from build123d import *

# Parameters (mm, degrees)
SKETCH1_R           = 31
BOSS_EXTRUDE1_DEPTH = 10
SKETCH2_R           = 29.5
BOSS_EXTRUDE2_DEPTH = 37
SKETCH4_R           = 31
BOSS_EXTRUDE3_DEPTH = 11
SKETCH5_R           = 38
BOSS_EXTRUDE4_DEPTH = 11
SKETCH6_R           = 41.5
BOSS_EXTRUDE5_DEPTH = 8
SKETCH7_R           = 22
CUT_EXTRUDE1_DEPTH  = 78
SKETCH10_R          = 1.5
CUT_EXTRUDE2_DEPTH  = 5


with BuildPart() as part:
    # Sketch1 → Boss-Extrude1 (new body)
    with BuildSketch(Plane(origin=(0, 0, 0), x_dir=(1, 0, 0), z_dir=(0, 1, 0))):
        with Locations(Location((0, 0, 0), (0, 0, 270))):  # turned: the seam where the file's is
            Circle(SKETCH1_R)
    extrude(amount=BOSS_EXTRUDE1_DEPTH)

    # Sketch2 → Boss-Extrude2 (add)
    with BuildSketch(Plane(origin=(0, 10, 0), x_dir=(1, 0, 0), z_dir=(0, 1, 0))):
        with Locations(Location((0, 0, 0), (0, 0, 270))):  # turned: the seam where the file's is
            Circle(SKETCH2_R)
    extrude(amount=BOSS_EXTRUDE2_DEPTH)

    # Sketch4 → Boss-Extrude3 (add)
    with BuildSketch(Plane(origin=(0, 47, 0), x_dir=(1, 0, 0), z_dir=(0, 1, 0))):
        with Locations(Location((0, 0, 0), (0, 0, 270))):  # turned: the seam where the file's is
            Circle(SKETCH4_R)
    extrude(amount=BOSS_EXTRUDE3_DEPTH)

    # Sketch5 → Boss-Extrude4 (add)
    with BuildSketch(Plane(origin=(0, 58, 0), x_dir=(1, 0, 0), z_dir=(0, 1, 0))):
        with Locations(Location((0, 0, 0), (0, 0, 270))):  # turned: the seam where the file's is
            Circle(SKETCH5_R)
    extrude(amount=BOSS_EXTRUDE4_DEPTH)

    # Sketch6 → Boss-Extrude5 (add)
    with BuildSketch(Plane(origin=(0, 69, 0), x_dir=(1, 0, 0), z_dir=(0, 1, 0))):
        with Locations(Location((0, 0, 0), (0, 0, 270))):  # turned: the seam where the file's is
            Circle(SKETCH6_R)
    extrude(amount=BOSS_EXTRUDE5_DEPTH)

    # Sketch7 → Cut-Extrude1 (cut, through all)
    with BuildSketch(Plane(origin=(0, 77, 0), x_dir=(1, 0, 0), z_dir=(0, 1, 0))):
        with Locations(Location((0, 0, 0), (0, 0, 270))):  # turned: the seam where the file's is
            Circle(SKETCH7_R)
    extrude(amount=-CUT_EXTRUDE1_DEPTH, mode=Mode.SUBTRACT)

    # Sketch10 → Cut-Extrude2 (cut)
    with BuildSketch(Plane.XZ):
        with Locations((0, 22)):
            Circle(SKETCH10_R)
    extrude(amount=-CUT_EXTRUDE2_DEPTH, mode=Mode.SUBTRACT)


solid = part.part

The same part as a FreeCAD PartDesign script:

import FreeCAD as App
import Part
import Sketcher

doc = App.newDocument("Part")
body = doc.addObject("PartDesign::Body", "Body")

# Sketch on XZ plane
sketch1 = body.newObject("Sketcher::SketchObject", "Sketch")
sketch1.AttachmentSupport = (doc.getObject("XZ_Plane"), [""])
sketch1.MapMode = "FlatFace"
sketch1.addGeometry(Part.Circle(App.Vector(0, 0, 0), App.Vector(0, 0, 1), 31), False)
sketch1.addConstraint([
    Sketcher.Constraint("Coincident", 0, 3, -1, 1),
    Sketcher.Constraint("Diameter", 0, 62.0),
])
pad1 = body.newObject("PartDesign::Pad", "Pad")
pad1.Profile = sketch1
pad1.Length = 10
pad1.Reversed = True

# Sketch on XZ plane
sketch2 = body.newObject("Sketcher::SketchObject", "Sketch001")
sketch2.AttachmentSupport = (doc.getObject("XZ_Plane"), [""])
sketch2.MapMode = "FlatFace"
sketch2.AttachmentOffset = App.Placement(App.Vector(0, 0, -10), App.Rotation())
sketch2.addGeometry(Part.Circle(App.Vector(0, 0, 0), App.Vector(0, 0, 1), 29.5), False)
sketch2.addConstraint([
    Sketcher.Constraint("Coincident", 0, 3, -1, 1),
    Sketcher.Constraint("Diameter", 0, 59.0),
])
pad2 = body.newObject("PartDesign::Pad", "Pad001")
pad2.Profile = sketch2
pad2.Length = 37
pad2.Reversed = True

# Sketch on XZ plane
sketch3 = body.newObject("Sketcher::SketchObject", "Sketch002")
sketch3.AttachmentSupport = (doc.getObject("XZ_Plane"), [""])
sketch3.MapMode = "FlatFace"
sketch3.AttachmentOffset = App.Placement(App.Vector(0, 0, -47), App.Rotation())
sketch3.addGeometry(Part.Circle(App.Vector(0, 0, 0), App.Vector(0, 0, 1), 31), False)
sketch3.addConstraint([
    Sketcher.Constraint("Coincident", 0, 3, -1, 1),
    Sketcher.Constraint("Diameter", 0, 62.0),
])
pad3 = body.newObject("PartDesign::Pad", "Pad002")
pad3.Profile = sketch3
pad3.Length = 11
pad3.Reversed = True

# Sketch on XZ plane
sketch4 = body.newObject("Sketcher::SketchObject", "Sketch003")
sketch4.AttachmentSupport = (doc.getObject("XZ_Plane"), [""])
sketch4.MapMode = "FlatFace"
sketch4.AttachmentOffset = App.Placement(App.Vector(0, 0, -58), App.Rotation())
sketch4.addGeometry(Part.Circle(App.Vector(0, 0, 0), App.Vector(0, 0, 1), 38), False)
sketch4.addConstraint([
    Sketcher.Constraint("Coincident", 0, 3, -1, 1),
    Sketcher.Constraint("Diameter", 0, 76.0),
])
pad4 = body.newObject("PartDesign::Pad", "Pad003")
pad4.Profile = sketch4
pad4.Length = 11
pad4.Reversed = True

# Sketch on XZ plane
sketch5 = body.newObject("Sketcher::SketchObject", "Sketch004")
sketch5.AttachmentSupport = (doc.getObject("XZ_Plane"), [""])
sketch5.MapMode = "FlatFace"
sketch5.AttachmentOffset = App.Placement(App.Vector(0, 0, -69), App.Rotation())
sketch5.addGeometry(Part.Circle(App.Vector(0, 0, 0), App.Vector(0, 0, 1), 41.5), False)
sketch5.addConstraint([
    Sketcher.Constraint("Coincident", 0, 3, -1, 1),
    Sketcher.Constraint("Diameter", 0, 83.0),
])
pad5 = body.newObject("PartDesign::Pad", "Pad004")
pad5.Profile = sketch5
pad5.Length = 8
pad5.Reversed = True

# Sketch on XZ plane
sketch6 = body.newObject("Sketcher::SketchObject", "Sketch005")
sketch6.AttachmentSupport = (doc.getObject("XZ_Plane"), [""])
sketch6.MapMode = "FlatFace"
sketch6.AttachmentOffset = App.Placement(App.Vector(0, 0, -77), App.Rotation())
sketch6.addGeometry(Part.Circle(App.Vector(0, 0, 0), App.Vector(0, 0, 1), 22), False)
sketch6.addConstraint([
    Sketcher.Constraint("Coincident", 0, 3, -1, 1),
    Sketcher.Constraint("Diameter", 0, 44.0),
])
pocket1 = body.newObject("PartDesign::Pocket", "Pocket")
pocket1.Profile = sketch6
pocket1.Type = "ThroughAll"
pocket1.Reversed = True

# Sketch on XZ plane
sketch7 = body.newObject("Sketcher::SketchObject", "Sketch006")
sketch7.AttachmentSupport = (doc.getObject("XZ_Plane"), [""])
sketch7.MapMode = "FlatFace"
sketch7.addGeometry(Part.Circle(App.Vector(0, 22, 0), App.Vector(0, 0, 1), 1.5), False)
sketch7.addConstraint([
    Sketcher.Constraint("PointOnObject", 0, 3, -2),
    Sketcher.Constraint("Diameter", 0, 3.0),
    Sketcher.Constraint("DistanceY", -1, 1, 0, 3, 22.0),
])
pocket2 = body.newObject("PartDesign::Pocket", "Pocket001")
pocket2.Profile = sketch7
pocket2.Length = 5

doc.recompute()
